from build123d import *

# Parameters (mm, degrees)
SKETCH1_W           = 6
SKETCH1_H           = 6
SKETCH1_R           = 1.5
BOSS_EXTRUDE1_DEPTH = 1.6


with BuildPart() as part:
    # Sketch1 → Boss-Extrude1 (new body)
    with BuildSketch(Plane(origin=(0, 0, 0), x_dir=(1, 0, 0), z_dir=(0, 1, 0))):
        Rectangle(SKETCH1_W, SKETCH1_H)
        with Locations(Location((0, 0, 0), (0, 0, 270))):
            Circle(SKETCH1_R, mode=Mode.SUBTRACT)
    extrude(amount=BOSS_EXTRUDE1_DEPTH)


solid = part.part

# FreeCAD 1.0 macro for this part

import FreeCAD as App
import Part
import Sketcher

V = App.Vector
Q = App.Units.Quantity

doc = App.newDocument("Part")
params = doc.addObject("Spreadsheet::Sheet", "Params")
for row, (alias, value) in enumerate([
    ("sketch1_diameter", "3 mm"),
    ("sketch1_width", "6 mm"),
    ("pad1_length", "1.6 mm"),
], start=1):
    params.set(f"A{row}", alias)
    params.set(f"B{row}", "=" + value)
    params.setAlias(f"B{row}", alias)

body = doc.addObject("PartDesign::Body", "Body")

sketch1 = body.newObject("Sketcher::SketchObject", "Sketch")
sketch1.AttachmentSupport = (doc.getObject("XZ_Plane"), [""])
sketch1.MapMode = "FlatFace"
sketch1.addGeometry([
    Part.LineSegment(V(-3, -3, 0), V(-3, 3, 0)),
    Part.LineSegment(V(-3, 3, 0), V(3, 3, 0)),
    Part.LineSegment(V(3, 3, 0), V(3, -3, 0)),
    Part.LineSegment(V(3, -3, 0), V(-3, -3, 0)),
    Part.Circle(V(0, 0, 0), V(0, 0, 1), 1.5),
], False)
sketch1.addConstraint([
    Sketcher.Constraint("Coincident", 0, 2, 1, 1),
    Sketcher.Constraint("Coincident", 1, 2, 2, 1),
    Sketcher.Constraint("Coincident", 2, 2, 3, 1),
    Sketcher.Constraint("Coincident", 3, 2, 0, 1),
    Sketcher.Constraint("Vertical", 0),
    Sketcher.Constraint("Horizontal", 1),
    Sketcher.Constraint("Vertical", 2),
    Sketcher.Constraint("Horizontal", 3),
    Sketcher.Constraint("Coincident", 4, 3, -1, 1),
    Sketcher.Constraint("Symmetric", 0, 2, 2, 2, -1, 1),
    Sketcher.Constraint("Equal", 3, 0),
    Sketcher.Constraint("Diameter", 4, Q("3 mm")),
    Sketcher.Constraint("DistanceX", 1, 1, 1, 2, Q("6 mm")),
])
sketch1.setExpression("Constraints[11]", "Params.sketch1_diameter")
sketch1.setExpression("Constraints[12]", "Params.sketch1_width")
pad1 = body.newObject("PartDesign::Pad", "Pad")
pad1.Profile = sketch1
pad1.setExpression("Length", "Params.pad1_length")
pad1.Reversed = True

doc.recompute()
